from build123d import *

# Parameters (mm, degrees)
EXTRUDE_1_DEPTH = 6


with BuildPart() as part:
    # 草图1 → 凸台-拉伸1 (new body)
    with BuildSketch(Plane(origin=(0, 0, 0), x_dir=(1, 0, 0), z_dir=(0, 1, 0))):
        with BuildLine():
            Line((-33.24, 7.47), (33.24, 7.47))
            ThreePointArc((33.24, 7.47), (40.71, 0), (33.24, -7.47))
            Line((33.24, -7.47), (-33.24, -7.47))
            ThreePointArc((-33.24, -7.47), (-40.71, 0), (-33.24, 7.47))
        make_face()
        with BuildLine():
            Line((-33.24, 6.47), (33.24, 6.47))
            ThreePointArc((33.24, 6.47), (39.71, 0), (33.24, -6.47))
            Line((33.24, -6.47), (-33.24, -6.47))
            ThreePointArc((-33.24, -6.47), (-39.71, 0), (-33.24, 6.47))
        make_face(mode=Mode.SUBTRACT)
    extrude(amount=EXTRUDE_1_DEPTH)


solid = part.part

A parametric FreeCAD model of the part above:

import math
import FreeCAD as App
import Part
import Sketcher
from FreeCAD import Vector
Q = App.Units.Quantity

doc = App.newDocument("Part")
body = doc.addObject("PartDesign::Body", "Body")

# Sketch on XZ plane
sketch1 = doc.addObject("Sketcher::SketchObject", "Sketch")
body.addObject(sketch1)
sketch1.AttachmentSupport = (doc.XZ_Plane, [""])
sketch1.MapMode = "FlatFace"
sketch1.addGeometry(Part.LineSegment(Vector(33.24, -7.47, 0), Vector(-33.24, -7.47, 0)), False)
sketch1.addGeometry(Part.ArcOfCircle(Part.Circle(Vector(-33.24, 0, 0), Vector(0, 0, 1), 7.47), math.radians(90), math.radians(270)), False)
sketch1.addGeometry(Part.LineSegment(Vector(-33.24, 7.47, 0), Vector(33.24, 7.47, 0)), False)
sketch1.addGeometry(Part.ArcOfCircle(Part.Circle(Vector(33.24, 0, 0), Vector(0, 0, 1), 7.47), math.radians(-90), math.radians(90)), False)
sketch1.addGeometry(Part.LineSegment(Vector(-33.24, -6.47, 0), Vector(33.24, -6.47, 0)), False)
sketch1.addGeometry(Part.ArcOfCircle(Part.Circle(Vector(33.24, 0, 0), Vector(0, 0, 1), 6.47), math.radians(-90), math.radians(90)), False)
sketch1.addGeometry(Part.LineSegment(Vector(33.24, 6.47, 0), Vector(-33.24, 6.47, 0)), False)
sketch1.addGeometry(Part.ArcOfCircle(Part.Circle(Vector(-33.24, 0, 0), Vector(0, 0, 1), 6.47), math.radians(90), math.radians(270)), False)
sketch1.addConstraint(Sketcher.Constraint("Tangent", 0, 2, 1, 2))
sketch1.addConstraint(Sketcher.Constraint("Tangent", 1, 1, 2, 1))
sketch1.addConstraint(Sketcher.Constraint("Tangent", 2, 2, 3, 2))
sketch1.addConstraint(Sketcher.Constraint("Tangent", 3, 1, 0, 1))
sketch1.addConstraint(Sketcher.Constraint("Tangent", 4, 2, 5, 1))
sketch1.addConstraint(Sketcher.Constraint("Tangent", 5, 2, 6, 1))
sketch1.addConstraint(Sketcher.Constraint("Tangent", 6, 2, 7, 1))
sketch1.addConstraint(Sketcher.Constraint("Tangent", 7, 2, 4, 1))
sketch1.addConstraint(Sketcher.Constraint("Horizontal", 0))
sketch1.addConstraint(Sketcher.Constraint("Horizontal", 2))
sketch1.addConstraint(Sketcher.Constraint("Horizontal", 4))
sketch1.addConstraint(Sketcher.Constraint("Horizontal", 6))
sketch1.addConstraint(Sketcher.Constraint("Coincident", 5, 3, 3, 3))
sketch1.addConstraint(Sketcher.Constraint("Symmetric", 1, 3, 3, 3, -1, 1))
sketch1.addConstraint(Sketcher.Constraint("Vertical", 7, 3, 0, 2))
sketch1.addConstraint(Sketcher.Constraint("Radius", 1, Q("7.47 mm")))
sketch1.addConstraint(Sketcher.Constraint("Radius", 5, Q("6.47 mm")))
sketch1.addConstraint(Sketcher.Constraint("DistanceX", 0, 2, 0, 1, Q("66.48 mm")))
pad1 = doc.addObject("PartDesign::Pad", "Pad")
body.addObject(pad1)
pad1.Profile = sketch1
pad1.Length = 6
pad1.Reversed = True

doc.recompute()
